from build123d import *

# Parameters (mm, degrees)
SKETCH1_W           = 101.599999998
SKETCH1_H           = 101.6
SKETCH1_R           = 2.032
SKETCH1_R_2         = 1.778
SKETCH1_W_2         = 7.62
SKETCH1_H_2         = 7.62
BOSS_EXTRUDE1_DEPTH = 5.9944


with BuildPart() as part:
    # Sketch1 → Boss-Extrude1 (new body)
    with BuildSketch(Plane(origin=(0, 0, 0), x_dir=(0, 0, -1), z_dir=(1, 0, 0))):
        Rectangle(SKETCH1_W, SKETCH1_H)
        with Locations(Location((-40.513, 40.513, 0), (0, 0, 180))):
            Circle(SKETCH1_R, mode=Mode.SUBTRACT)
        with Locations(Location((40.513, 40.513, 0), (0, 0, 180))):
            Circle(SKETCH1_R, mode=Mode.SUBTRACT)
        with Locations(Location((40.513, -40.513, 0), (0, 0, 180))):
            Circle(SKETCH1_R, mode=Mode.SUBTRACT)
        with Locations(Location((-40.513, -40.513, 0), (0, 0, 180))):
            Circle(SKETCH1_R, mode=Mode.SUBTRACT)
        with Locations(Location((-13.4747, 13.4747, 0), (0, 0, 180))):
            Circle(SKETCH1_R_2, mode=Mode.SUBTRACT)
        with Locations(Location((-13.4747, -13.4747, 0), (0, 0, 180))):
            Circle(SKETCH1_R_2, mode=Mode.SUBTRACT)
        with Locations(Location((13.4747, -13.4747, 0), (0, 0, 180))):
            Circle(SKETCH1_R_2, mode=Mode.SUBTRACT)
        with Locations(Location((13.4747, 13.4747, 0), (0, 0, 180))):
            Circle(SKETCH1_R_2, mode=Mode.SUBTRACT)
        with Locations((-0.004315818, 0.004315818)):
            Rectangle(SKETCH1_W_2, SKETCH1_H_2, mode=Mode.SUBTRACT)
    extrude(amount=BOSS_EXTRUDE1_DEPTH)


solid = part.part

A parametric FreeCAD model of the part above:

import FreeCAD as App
import Part
import Sketcher
from FreeCAD import Vector
Q = App.Units.Quantity

doc = App.newDocument("Part")
body = doc.addObject("PartDesign::Body", "Body")

# Sketch on YZ plane
sketch1 = body.newObject("Sketcher::SketchObject", "Sketch")
sketch1.AttachmentSupport = (doc.getObject("YZ_Plane"), [""])
sketch1.MapMode = "FlatFace"
sketch1.addGeometry(Part.LineSegment(Vector(50.8, 50.8, 0), Vector(-50.8, 50.8, 0)), False)
sketch1.addGeometry(Part.LineSegment(Vector(-50.8, 50.8, 0), Vector(-50.8, -50.8, 0)), False)
sketch1.addGeometry(Part.LineSegment(Vector(-50.8, -50.8, 0), Vector(50.8, -50.8, 0)), False)
sketch1.addGeometry(Part.LineSegment(Vector(50.8, -50.8, 0), Vector(50.8, 50.8, 0)), False)
sketch1.addGeometry(Part.Circle(Vector(-40.5, 40.5, 0), Vector(0, 0, 1), 2), False)
sketch1.addGeometry(Part.Circle(Vector(-13.5, 13.5, 0), Vector(0, 0, 1), 1.8), False)
sketch1.addGeometry(Part.Circle(Vector(-40.5, -40.5, 0), Vector(0, 0, 1), 2), False)
sketch1.addGeometry(Part.Circle(Vector(-13.5, -13.5, 0), Vector(0, 0, 1), 1.8), False)
sketch1.addGeometry(Part.LineSegment(Vector(-3.8, -3.8, 0), Vector(-3.8, 3.8, 0)), False)
sketch1.addGeometry(Part.LineSegment(Vector(-3.8, 3.8, 0), Vector(3.8, 3.8, 0)), False)
sketch1.addGeometry(Part.LineSegment(Vector(3.8, 3.8, 0), Vector(3.8, -3.8, 0)), False)
sketch1.addGeometry(Part.LineSegment(Vector(3.8, -3.8, 0), Vector(-3.8, -3.8, 0)), False)
sketch1.addGeometry(Part.Circle(Vector(13.5, 13.5, 0), Vector(0, 0, 1), 1.8), False)
sketch1.addGeometry(Part.Circle(Vector(40.5, 40.5, 0), Vector(0, 0, 1), 2), False)
sketch1.addGeometry(Part.Circle(Vector(13.5, -13.5, 0), Vector(0, 0, 1), 1.8), False)
sketch1.addGeometry(Part.Circle(Vector(40.5, -40.5, 0), Vector(0, 0, 1), 2), False)
sketch1.addConstraint(Sketcher.Constraint("Coincident", 0, 2, 1, 1))
sketch1.addConstraint(Sketcher.Constraint("Coincident", 1, 2, 2, 1))
sketch1.addConstraint(Sketcher.Constraint("Coincident", 2, 2, 3, 1))
sketch1.addConstraint(Sketcher.Constraint("Coincident", 3, 2, 0, 1))
sketch1.addConstraint(Sketcher.Constraint("Coincident", 8, 2, 9, 1))
sketch1.addConstraint(Sketcher.Constraint("Coincident", 9, 2, 10, 1))
sketch1.addConstraint(Sketcher.Constraint("Coincident", 10, 2, 11, 1))
sketch1.addConstraint(Sketcher.Constraint("Coincident", 11, 2, 8, 1))
sketch1.addConstraint(Sketcher.Constraint("Horizontal", 0))
sketch1.addConstraint(Sketcher.Constraint("Vertical", 1))
sketch1.addConstraint(Sketcher.Constraint("Horizontal", 2))
sketch1.addConstraint(Sketcher.Constraint("Vertical", 3))
sketch1.addConstraint(Sketcher.Constraint("Vertical", 8))
sketch1.addConstraint(Sketcher.Constraint("Horizontal", 9))
sketch1.addConstraint(Sketcher.Constraint("Vertical", 10))
sketch1.addConstraint(Sketcher.Constraint("Horizontal", 11))
sketch1.addConstraint(Sketcher.Constraint("Equal", 4, 6))
sketch1.addConstraint(Sketcher.Constraint("Equal", 5, 7))
sketch1.addConstraint(Sketcher.Constraint("Equal", 7, 12))
sketch1.addConstraint(Sketcher.Constraint("Equal", 6, 13))
sketch1.addConstraint(Sketcher.Constraint("Equal", 12, 14))
sketch1.addConstraint(Sketcher.Constraint("Equal", 13, 15))
sketch1.addConstraint(Sketcher.Constraint("Symmetric", 7, 3, 12, 3, -1, 1))
sketch1.addConstraint(Sketcher.Constraint("Symmetric", 6, 3, 13, 3, -1, 1))
sketch1.addConstraint(Sketcher.Constraint("Symmetric", 5, 3, 14, 3, -1, 1))
sketch1.addConstraint(Sketcher.Constraint("Symmetric", 4, 3, 15, 3, -1, 1))
sketch1.addConstraint(Sketcher.Constraint("Symmetric", 0, 2, 2, 2, -1, 1))
sketch1.addConstraint(Sketcher.Constraint("Symmetric", 5, 3, 12, 3, -2))
sketch1.addConstraint(Sketcher.Constraint("Symmetric", 4, 3, 13, 3, -2))
sketch1.addConstraint(Sketcher.Constraint("Equal", 2, 1))
sketch1.addConstraint(Sketcher.Constraint("Equal", 11, 8))
sketch1.addConstraint(Sketcher.Constraint("Diameter", 4, Q("0.16 in")))
sketch1.addConstraint(Sketcher.Constraint("Diameter", 5, Q("0.14 in")))
sketch1.addConstraint(Sketcher.Constraint("DistanceX", 0, 2, 0, 1, Q("4 in")))
sketch1.addConstraint(Sketcher.Constraint("DistanceX", 9, 1, 9, 2, Q("0.3 in")))
sketch1.addConstraint(Sketcher.Constraint("DistanceY", 6, 3, 4, 3, Q("3.19 in")))
sketch1.addConstraint(Sketcher.Constraint("DistanceX", 4, 3, 13, 3, Q("3.19 in")))
sketch1.addConstraint(Sketcher.Constraint("DistanceY", 7, 3, 5, 3, Q("1.061 in")))
sketch1.addConstraint(Sketcher.Constraint("DistanceX", 5, 3, 12, 3, Q("1.061 in")))
sketch1.addConstraint(Sketcher.Constraint("DistanceX", 8, 2, -1, 1, Q("3.805684 mm")))
sketch1.addConstraint(Sketcher.Constraint("DistanceY", -1, 1, 8, 2, Q("3.814316 mm")))
pad1 = body.newObject("PartDesign::Pad", "Pad")
pad1.Profile = sketch1
pad1.Length = Q("0.236 in")

doc.recompute()
